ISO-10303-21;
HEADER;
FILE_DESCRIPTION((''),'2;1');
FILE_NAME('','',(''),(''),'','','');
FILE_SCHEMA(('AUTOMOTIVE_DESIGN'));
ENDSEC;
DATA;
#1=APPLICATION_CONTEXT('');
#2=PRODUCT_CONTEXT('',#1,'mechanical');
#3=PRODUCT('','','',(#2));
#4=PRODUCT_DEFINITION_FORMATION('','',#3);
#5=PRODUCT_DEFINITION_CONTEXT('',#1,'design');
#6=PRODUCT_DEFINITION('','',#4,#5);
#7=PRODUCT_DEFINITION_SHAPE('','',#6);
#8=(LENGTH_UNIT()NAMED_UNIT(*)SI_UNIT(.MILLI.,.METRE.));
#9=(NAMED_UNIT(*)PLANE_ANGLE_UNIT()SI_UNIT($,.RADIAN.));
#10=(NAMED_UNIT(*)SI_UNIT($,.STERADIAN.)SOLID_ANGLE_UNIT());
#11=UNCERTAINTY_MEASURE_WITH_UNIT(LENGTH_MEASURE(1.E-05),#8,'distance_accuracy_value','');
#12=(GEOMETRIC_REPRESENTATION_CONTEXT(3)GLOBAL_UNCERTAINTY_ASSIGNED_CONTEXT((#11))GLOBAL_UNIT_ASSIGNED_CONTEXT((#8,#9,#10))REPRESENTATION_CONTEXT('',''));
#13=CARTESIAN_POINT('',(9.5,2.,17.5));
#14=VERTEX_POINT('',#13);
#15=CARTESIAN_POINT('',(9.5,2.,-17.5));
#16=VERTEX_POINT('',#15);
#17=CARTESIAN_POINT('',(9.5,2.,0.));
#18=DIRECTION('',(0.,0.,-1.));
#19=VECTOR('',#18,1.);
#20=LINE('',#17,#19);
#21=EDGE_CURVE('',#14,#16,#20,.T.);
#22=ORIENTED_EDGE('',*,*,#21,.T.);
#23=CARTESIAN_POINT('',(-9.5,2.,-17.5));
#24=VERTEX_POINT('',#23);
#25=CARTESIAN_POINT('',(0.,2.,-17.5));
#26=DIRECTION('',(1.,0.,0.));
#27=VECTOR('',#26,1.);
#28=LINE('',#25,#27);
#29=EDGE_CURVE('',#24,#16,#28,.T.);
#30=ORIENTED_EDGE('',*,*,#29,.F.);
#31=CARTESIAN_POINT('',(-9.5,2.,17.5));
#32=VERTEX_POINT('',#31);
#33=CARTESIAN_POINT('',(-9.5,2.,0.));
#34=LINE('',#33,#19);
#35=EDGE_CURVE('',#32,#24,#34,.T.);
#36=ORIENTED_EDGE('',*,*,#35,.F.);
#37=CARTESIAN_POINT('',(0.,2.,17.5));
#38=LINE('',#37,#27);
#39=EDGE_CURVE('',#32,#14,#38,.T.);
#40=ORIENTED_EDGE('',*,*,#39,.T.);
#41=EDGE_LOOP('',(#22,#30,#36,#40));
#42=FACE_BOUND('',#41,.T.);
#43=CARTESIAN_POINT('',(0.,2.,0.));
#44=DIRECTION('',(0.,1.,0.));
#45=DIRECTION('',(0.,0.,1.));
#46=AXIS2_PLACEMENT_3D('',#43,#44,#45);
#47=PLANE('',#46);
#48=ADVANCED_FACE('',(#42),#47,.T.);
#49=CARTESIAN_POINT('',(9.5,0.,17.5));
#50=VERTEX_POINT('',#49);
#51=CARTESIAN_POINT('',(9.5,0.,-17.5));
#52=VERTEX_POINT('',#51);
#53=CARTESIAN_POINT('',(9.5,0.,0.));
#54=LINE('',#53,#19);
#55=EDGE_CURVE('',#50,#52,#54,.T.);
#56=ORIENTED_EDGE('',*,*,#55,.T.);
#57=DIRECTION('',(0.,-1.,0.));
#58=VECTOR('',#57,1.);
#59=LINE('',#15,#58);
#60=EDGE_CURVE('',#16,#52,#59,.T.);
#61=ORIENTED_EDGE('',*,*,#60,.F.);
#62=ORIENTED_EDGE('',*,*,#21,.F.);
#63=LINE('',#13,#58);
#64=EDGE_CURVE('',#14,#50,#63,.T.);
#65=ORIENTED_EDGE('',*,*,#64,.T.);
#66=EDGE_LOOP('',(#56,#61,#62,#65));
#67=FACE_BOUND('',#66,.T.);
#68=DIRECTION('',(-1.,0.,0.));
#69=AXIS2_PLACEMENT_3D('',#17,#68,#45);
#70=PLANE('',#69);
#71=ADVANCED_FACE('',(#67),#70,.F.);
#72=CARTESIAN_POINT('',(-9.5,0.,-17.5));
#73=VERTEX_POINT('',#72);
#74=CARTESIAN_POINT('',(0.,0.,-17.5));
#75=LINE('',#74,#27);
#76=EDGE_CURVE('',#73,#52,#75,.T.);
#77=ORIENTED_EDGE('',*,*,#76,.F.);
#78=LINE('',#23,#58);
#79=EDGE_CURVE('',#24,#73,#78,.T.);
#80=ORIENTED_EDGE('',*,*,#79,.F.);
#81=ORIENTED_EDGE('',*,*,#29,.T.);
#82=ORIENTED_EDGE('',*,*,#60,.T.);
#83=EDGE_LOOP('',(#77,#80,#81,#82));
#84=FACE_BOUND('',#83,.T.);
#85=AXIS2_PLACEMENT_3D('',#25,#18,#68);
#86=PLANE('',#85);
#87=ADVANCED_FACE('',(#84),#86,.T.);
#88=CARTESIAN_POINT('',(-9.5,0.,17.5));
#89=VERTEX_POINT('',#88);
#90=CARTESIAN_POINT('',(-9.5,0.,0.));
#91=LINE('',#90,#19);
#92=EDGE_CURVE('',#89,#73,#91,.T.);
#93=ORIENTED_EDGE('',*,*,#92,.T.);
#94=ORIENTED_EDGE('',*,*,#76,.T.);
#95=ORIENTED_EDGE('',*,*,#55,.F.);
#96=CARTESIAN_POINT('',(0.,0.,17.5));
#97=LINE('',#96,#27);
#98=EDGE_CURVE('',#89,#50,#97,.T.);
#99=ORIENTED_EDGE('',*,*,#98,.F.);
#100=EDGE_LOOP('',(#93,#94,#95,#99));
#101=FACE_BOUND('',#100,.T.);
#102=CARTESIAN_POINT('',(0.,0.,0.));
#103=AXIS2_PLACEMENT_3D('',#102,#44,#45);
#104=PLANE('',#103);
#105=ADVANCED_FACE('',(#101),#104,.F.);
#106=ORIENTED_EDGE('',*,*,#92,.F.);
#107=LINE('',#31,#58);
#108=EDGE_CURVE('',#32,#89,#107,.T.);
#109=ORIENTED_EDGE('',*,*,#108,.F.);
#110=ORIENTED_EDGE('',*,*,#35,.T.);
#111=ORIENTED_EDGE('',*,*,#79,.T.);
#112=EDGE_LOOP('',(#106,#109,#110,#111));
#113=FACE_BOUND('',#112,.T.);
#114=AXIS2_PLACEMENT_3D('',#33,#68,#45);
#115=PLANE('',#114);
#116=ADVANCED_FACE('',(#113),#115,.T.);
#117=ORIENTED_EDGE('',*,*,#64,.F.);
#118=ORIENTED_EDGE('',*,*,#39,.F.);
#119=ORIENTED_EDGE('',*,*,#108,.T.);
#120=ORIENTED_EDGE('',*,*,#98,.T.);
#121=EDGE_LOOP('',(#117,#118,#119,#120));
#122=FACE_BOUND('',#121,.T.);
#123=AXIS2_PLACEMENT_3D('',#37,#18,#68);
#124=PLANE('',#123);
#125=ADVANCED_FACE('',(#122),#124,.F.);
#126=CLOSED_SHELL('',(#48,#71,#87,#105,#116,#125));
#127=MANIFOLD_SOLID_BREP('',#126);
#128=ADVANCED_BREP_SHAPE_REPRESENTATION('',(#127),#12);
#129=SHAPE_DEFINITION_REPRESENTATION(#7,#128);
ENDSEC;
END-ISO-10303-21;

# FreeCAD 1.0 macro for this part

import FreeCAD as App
import Part
import Sketcher
from FreeCAD import Vector
Q = App.Units.Quantity


def add_polygon(sketch, points):
    """Adds a closed chain of lines whose ends are joined by coincident constraints."""
    first, n = sketch.GeometryCount, len(points)
    for a, b in zip(points, points[1:] + points[:1]):
        sketch.addGeometry(Part.LineSegment(App.Vector(*a, 0), App.Vector(*b, 0)), False)
    for i in range(n):
        sketch.addConstraint(Sketcher.Constraint("Coincident", first + i, 2, first + (i + 1) % n, 1))

doc = App.newDocument("Part")
params = doc.addObject("Spreadsheet::Sheet", "Params")
for row, (alias, value) in enumerate([
    ("sketch1_width", "19 mm"),
    ("sketch1_height", "35 mm"),
    ("pad1_length", "2 mm"),
], start=1):
    params.set(f"A{row}", alias)
    params.set(f"B{row}", "=" + value)
    params.setAlias(f"B{row}", alias)

body = doc.addObject("PartDesign::Body", "Body")

# Sketch on XZ plane
sketch1 = body.newObject("Sketcher::SketchObject", "Sketch")
sketch1.AttachmentSupport = (doc.getObject("XZ_Plane"), [""])
sketch1.MapMode = "FlatFace"
add_polygon(sketch1, [(-9.5, -17.5), (-9.5, 17.5), (9.5, 17.5), (9.5, -17.5)])  # lines 0-3
sketch1.addConstraint([
    Sketcher.Constraint("Vertical", 0),
    Sketcher.Constraint("Horizontal", 1),
    Sketcher.Constraint("Vertical", 2),
    Sketcher.Constraint("Horizontal", 3),
    Sketcher.Constraint("Symmetric", 0, 2, 2, 2, -1, 1),
    Sketcher.Constraint("DistanceX", 1, 1, 1, 2, Q("19 mm")),
    Sketcher.Constraint("DistanceY", 0, 1, 0, 2, Q("35 mm")),
])
sketch1.setExpression("Constraints[9]", "Params.sketch1_width")
sketch1.setExpression("Constraints[10]", "Params.sketch1_height")
pad1 = body.newObject("PartDesign::Pad", "Pad")
pad1.Profile = sketch1
pad1.setExpression("Length", "Params.pad1_length")
pad1.Reversed = True

doc.recompute()
